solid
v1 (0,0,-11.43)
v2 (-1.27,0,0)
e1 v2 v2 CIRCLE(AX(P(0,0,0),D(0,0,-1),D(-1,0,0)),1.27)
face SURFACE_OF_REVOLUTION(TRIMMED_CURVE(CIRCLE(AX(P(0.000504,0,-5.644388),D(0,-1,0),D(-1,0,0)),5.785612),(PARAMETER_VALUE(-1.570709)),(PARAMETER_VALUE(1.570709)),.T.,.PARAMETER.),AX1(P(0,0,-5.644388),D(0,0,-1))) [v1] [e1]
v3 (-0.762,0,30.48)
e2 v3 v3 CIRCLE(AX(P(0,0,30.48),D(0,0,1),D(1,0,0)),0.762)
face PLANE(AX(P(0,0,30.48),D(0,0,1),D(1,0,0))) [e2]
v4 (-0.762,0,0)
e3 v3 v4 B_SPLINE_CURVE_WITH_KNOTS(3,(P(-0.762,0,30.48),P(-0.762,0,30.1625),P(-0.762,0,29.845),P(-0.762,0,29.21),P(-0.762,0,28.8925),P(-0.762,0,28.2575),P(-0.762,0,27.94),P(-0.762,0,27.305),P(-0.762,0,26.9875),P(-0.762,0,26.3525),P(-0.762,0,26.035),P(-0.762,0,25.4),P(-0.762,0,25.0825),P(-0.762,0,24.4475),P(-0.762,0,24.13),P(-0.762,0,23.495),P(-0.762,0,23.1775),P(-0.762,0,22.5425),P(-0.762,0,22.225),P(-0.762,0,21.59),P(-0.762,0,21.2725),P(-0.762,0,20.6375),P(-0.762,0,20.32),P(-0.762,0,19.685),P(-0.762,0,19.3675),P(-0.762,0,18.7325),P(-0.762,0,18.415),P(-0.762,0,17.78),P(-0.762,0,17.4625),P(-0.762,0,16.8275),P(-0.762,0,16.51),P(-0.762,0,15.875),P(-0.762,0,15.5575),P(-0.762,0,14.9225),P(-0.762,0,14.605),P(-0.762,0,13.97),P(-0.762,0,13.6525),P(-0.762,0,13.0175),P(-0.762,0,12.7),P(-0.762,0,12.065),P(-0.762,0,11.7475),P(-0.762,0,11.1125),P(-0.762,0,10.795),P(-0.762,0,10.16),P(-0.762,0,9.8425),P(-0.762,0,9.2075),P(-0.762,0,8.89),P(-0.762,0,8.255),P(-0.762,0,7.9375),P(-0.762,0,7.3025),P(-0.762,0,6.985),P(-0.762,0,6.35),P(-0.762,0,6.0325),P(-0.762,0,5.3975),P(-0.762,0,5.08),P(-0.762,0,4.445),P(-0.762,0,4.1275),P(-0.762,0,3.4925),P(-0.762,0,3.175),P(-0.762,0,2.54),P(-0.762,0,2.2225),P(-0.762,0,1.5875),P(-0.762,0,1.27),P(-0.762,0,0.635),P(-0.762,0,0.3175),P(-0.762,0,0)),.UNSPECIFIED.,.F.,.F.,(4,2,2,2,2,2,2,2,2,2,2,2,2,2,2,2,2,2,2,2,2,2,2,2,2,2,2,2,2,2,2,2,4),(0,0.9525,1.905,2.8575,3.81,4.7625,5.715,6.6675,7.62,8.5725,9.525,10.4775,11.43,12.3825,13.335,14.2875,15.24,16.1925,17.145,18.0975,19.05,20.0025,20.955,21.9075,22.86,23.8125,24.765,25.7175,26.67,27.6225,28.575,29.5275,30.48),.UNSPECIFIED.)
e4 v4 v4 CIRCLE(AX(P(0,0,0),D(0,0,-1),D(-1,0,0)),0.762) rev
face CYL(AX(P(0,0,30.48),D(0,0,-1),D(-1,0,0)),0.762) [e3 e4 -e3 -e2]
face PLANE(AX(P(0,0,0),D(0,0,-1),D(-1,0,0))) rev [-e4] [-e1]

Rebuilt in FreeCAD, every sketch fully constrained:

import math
import FreeCAD as App
import Part
import Sketcher

V = App.Vector
Q = App.Units.Quantity

doc = App.newDocument("Part")
body = doc.addObject("PartDesign::Body", "Body")

# Sketch on XZ plane
sketch1 = body.newObject("Sketcher::SketchObject", "Sketch")
sketch1.AttachmentSupport = (doc.getObject("XZ_Plane"), [""])
sketch1.MapMode = "FlatFace"
sketch1.addGeometry(Part.LineSegment(V(0, 0, 0), V(1.3, 0, 0)), False)
sketch1.addGeometry(Part.ArcOfCircle(Part.Circle(V(0, -5.6, 0), V(0, 0, 1), 5.8), math.radians(-90), math.radians(77)), False)
sketch1.addGeometry(Part.LineSegment(V(0, -11.4, 0), V(0, 0, 0)), False)
sketch1.addConstraint(Sketcher.Constraint("Coincident", 0, 2, 1, 2))
sketch1.addConstraint(Sketcher.Constraint("Coincident", 1, 1, 2, 1))
sketch1.addConstraint(Sketcher.Constraint("Coincident", 2, 2, 0, 1))
sketch1.addConstraint(Sketcher.Constraint("Horizontal", 0))
sketch1.addConstraint(Sketcher.Constraint("Vertical", 2))
sketch1.addConstraint(Sketcher.Constraint("Coincident", 2, 2, -1, 1))
sketch1.addConstraint(Sketcher.Constraint("DistanceX", 0, 1, 0, 2, Q("0.05 in")))
sketch1.addConstraint(Sketcher.Constraint("DistanceY", 2, 1, 2, 2, Q("0.45 in")))
sketch1.addConstraint(Sketcher.Constraint("Radius", 1, Q("5.785612 mm")))
revolution = body.newObject("PartDesign::Revolution", "Revolution")
revolution.Profile = sketch1
revolution.ReferenceAxis = (sketch1, ["V_Axis"])
revolution.Angle = 360

# Sketch on XY plane
sketch2 = body.newObject("Sketcher::SketchObject", "Sketch001")
sketch2.AttachmentSupport = (doc.getObject("XY_Plane"), [""])
sketch2.MapMode = "FlatFace"
sketch2.addGeometry(Part.Circle(V(0, 0, 0), V(0, 0, 1), 0.8), False)
sketch2.addConstraint(Sketcher.Constraint("Coincident", 0, 3, -1, 1))
sketch2.addConstraint(Sketcher.Constraint("Diameter", 0, Q("0.06 in")))
pad1 = body.newObject("PartDesign::Pad", "Pad")
pad1.Profile = sketch2
pad1.Length = Q("1.2 in")

doc.recompute()
